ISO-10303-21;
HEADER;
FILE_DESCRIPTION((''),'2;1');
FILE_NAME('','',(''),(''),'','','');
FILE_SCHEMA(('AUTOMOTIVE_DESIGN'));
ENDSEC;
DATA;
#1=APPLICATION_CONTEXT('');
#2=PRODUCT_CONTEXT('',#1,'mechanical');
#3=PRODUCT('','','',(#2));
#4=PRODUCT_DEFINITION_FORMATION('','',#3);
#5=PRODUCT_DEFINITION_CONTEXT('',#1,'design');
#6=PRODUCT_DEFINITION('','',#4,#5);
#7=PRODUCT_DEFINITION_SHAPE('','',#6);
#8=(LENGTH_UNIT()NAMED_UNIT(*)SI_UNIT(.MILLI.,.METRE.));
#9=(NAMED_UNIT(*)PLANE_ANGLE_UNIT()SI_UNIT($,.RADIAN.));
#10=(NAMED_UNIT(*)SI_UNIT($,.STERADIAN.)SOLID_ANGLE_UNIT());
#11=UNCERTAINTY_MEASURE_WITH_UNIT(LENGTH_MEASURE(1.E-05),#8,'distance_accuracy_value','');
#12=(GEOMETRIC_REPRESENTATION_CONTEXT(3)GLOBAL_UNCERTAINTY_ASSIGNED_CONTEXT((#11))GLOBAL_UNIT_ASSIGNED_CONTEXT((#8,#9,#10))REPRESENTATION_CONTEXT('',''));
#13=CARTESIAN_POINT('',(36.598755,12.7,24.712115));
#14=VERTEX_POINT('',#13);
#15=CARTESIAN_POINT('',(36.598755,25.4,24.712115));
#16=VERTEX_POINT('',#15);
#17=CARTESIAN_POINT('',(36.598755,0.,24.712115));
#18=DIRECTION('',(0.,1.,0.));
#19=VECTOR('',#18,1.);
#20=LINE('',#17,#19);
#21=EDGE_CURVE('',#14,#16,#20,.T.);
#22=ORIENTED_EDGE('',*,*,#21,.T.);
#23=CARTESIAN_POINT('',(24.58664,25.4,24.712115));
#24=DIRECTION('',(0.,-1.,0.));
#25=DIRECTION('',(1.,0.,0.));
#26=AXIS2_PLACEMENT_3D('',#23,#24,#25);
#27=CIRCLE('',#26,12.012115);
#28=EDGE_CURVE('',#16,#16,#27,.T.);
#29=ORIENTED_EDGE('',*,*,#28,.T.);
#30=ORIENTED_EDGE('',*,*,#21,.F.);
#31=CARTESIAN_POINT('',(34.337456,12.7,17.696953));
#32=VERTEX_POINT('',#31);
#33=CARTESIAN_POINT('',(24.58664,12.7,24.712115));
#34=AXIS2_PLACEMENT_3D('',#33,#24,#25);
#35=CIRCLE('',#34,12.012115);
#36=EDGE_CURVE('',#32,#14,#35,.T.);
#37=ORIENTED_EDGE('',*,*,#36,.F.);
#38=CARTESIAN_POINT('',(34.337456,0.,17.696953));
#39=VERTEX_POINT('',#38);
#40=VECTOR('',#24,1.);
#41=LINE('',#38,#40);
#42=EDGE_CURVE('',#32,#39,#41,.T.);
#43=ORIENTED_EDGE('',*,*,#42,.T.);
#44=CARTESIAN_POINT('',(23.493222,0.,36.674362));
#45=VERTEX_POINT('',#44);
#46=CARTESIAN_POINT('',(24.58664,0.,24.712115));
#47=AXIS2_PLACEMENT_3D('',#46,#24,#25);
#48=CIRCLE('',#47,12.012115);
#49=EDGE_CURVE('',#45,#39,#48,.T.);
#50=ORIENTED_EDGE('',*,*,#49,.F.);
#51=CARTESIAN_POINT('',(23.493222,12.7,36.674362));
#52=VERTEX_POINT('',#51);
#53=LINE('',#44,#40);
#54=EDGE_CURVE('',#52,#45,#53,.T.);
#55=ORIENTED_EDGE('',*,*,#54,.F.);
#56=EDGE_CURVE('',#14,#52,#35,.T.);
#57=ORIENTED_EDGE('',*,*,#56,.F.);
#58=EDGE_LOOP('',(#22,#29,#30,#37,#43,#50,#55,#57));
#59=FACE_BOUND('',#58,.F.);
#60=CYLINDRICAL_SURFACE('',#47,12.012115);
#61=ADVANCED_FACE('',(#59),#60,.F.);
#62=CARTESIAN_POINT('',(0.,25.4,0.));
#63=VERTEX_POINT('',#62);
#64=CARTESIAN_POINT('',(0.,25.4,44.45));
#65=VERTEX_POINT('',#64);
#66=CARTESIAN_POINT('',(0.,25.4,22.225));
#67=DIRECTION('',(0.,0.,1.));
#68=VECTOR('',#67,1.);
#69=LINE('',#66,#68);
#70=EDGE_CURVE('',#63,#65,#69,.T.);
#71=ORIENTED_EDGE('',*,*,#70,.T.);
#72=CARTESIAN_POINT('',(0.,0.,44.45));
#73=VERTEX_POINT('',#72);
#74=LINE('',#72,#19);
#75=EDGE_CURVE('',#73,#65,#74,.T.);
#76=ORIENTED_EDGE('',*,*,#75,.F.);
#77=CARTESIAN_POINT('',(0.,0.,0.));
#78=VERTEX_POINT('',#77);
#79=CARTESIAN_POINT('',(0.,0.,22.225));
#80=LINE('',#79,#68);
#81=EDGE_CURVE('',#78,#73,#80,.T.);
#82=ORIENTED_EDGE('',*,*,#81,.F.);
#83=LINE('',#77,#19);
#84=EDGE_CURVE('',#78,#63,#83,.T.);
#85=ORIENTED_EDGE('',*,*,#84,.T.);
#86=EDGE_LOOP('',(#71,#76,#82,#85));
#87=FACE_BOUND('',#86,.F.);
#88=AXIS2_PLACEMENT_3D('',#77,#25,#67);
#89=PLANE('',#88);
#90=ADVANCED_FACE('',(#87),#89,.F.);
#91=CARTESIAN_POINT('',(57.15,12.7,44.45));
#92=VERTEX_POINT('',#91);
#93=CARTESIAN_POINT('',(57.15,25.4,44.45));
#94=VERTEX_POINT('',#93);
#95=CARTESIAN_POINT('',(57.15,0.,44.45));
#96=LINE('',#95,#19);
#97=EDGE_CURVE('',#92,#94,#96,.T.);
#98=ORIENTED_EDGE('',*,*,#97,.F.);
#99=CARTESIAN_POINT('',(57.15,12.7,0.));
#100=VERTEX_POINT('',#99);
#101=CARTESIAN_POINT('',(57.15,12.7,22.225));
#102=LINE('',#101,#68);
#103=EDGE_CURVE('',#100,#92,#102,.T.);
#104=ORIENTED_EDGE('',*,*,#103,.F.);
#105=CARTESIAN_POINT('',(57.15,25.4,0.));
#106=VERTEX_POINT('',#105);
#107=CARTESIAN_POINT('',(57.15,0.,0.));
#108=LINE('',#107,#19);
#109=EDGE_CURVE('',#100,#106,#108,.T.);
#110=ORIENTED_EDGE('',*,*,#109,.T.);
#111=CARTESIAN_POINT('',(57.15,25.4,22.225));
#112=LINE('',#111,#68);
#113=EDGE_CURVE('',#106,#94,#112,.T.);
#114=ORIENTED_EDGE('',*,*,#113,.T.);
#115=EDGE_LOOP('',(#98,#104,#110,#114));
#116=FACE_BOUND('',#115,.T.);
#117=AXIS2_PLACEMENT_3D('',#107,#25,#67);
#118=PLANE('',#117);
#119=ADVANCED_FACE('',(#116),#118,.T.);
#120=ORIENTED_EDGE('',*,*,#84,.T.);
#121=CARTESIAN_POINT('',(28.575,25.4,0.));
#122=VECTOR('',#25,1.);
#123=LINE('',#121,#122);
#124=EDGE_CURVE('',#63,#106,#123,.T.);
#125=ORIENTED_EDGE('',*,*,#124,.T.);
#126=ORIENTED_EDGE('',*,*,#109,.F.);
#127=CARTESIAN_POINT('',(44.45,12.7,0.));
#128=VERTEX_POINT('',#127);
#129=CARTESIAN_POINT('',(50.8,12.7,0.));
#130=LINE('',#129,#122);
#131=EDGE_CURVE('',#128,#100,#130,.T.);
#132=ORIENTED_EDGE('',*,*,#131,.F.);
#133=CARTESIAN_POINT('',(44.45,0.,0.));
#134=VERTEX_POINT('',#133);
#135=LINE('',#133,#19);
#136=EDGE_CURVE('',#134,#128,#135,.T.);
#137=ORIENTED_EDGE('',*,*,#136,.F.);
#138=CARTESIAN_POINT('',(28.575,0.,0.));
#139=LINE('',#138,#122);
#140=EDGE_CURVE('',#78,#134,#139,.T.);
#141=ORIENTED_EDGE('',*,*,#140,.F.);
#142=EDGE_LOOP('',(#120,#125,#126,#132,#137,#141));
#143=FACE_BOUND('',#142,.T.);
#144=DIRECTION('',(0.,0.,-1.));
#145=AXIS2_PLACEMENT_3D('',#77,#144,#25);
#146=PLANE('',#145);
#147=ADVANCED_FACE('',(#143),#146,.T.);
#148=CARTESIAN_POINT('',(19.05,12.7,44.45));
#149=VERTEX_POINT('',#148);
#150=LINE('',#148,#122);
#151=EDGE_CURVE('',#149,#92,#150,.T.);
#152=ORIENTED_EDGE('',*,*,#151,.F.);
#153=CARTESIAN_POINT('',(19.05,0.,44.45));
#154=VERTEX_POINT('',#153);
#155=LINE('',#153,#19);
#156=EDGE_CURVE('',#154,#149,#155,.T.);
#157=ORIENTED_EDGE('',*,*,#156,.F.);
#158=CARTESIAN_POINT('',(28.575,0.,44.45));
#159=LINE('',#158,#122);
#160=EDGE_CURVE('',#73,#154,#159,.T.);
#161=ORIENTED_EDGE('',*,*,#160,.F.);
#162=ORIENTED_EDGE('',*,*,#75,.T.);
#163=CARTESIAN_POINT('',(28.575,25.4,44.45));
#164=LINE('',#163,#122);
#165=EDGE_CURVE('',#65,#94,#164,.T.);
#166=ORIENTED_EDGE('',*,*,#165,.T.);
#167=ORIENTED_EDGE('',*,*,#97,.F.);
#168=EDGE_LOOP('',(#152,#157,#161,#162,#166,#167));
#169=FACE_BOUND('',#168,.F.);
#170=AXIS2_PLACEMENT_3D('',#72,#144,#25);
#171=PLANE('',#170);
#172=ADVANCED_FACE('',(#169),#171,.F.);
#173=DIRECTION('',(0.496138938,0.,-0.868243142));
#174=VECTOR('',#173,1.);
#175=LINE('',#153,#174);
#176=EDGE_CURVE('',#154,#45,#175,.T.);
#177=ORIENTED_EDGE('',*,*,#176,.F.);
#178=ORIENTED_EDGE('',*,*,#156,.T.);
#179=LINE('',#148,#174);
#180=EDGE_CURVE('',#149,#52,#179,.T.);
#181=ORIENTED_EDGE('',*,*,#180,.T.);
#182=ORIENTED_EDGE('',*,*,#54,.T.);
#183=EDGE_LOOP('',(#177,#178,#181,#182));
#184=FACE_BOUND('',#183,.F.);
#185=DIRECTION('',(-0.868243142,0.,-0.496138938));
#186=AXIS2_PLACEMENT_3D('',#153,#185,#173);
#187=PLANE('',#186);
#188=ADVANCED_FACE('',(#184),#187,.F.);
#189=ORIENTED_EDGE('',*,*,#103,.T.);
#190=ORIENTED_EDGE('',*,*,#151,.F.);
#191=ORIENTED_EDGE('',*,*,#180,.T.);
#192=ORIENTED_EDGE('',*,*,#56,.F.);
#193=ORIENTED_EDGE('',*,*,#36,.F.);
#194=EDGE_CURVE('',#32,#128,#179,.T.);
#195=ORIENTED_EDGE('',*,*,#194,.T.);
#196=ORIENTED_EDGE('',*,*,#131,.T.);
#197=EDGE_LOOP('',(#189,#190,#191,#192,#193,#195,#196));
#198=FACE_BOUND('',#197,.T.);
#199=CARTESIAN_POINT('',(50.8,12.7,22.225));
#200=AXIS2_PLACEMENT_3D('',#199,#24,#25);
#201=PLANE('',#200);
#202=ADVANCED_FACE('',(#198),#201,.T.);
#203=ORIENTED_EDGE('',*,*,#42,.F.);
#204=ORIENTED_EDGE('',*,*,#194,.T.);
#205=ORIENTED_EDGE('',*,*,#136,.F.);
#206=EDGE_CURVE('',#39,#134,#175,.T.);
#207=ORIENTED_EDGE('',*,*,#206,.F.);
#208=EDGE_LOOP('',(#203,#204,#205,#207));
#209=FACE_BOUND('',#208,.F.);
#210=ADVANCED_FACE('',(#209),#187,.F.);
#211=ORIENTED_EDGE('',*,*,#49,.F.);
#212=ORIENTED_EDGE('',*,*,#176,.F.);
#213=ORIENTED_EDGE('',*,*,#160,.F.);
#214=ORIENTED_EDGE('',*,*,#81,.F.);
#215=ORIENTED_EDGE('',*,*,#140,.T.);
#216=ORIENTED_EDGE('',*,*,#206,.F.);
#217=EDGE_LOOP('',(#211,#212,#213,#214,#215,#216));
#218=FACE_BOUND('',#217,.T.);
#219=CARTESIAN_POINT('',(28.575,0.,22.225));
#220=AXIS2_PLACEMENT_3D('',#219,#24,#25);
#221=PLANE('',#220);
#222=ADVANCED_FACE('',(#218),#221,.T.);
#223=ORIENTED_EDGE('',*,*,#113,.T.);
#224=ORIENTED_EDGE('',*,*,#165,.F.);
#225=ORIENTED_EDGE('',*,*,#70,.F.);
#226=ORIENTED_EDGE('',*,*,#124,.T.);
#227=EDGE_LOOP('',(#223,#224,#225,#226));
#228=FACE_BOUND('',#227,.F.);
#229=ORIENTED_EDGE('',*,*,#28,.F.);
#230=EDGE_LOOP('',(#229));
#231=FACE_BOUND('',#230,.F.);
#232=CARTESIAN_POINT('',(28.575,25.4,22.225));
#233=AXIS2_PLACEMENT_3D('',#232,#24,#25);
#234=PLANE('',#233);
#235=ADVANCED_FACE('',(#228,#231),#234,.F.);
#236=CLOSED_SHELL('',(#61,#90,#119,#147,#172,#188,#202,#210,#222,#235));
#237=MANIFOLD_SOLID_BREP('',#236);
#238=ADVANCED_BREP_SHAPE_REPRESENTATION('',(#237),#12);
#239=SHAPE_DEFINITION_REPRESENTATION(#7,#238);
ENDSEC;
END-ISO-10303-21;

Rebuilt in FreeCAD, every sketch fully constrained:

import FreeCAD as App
import Part
import Sketcher

V = App.Vector
Q = App.Units.Quantity


def add_polygon(sketch, points):
    """Adds a closed chain of lines whose ends are joined by coincident constraints."""
    first, n = sketch.GeometryCount, len(points)
    for a, b in zip(points, points[1:] + points[:1]):
        sketch.addGeometry(Part.LineSegment(App.Vector(*a, 0), App.Vector(*b, 0)), False)
    for i in range(n):
        sketch.addConstraint(Sketcher.Constraint("Coincident", first + i, 2, first + (i + 1) % n, 1))

doc = App.newDocument("Part")
body = doc.addObject("PartDesign::Body", "Body")

# Sketch on XZ plane
sketch1 = body.newObject("Sketcher::SketchObject", "Sketch")
sketch1.AttachmentSupport = (doc.getObject("XZ_Plane"), [""])
sketch1.MapMode = "FlatFace"
add_polygon(sketch1, [(0, 44), (0, 0), (57, 0), (57, 44)])  # lines 0-3
sketch1.addConstraint([
    Sketcher.Constraint("Vertical", 0),
    Sketcher.Constraint("Horizontal", 1),
    Sketcher.Constraint("Vertical", 2),
    Sketcher.Constraint("Horizontal", 3),
    Sketcher.Constraint("Coincident", 0, 2, -1, 1),
    Sketcher.Constraint("DistanceX", 1, 1, 1, 2, Q("2.25 in")),
    Sketcher.Constraint("DistanceY", 0, 2, 0, 1, Q("1.75 in")),
])
pad1 = body.newObject("PartDesign::Pad", "Pad")
pad1.Profile = sketch1
pad1.Length = Q("1 in")
pad1.Reversed = True

# Sketch on XZ plane
sketch2 = body.newObject("Sketcher::SketchObject", "Sketch001")
sketch2.AttachmentSupport = (doc.getObject("XZ_Plane"), [""])
sketch2.MapMode = "FlatFace"
add_polygon(sketch2, [(44, 44), (44, 0), (57, 0), (57, 44)])  # lines 0-3
sketch2.addConstraint([
    Sketcher.Constraint("Vertical", 0),
    Sketcher.Constraint("Horizontal", 1),
    Sketcher.Constraint("Vertical", 2),
    Sketcher.Constraint("Horizontal", 3),
    Sketcher.Constraint("PointOnObject", 0, 2, -1),
    Sketcher.Constraint("DistanceX", 1, 1, 1, 2, Q("0.5 in")),
    Sketcher.Constraint("DistanceY", 0, 2, 0, 1, Q("1.75 in")),
    Sketcher.Constraint("DistanceX", -1, 1, 0, 2, Q("1.75 in")),
])
pocket1 = body.newObject("PartDesign::Pocket", "Pocket")
pocket1.Profile = sketch2
pocket1.Length = Q("0.5 in")

# Sketch on XZ plane
sketch3 = body.newObject("Sketcher::SketchObject", "Sketch002")
sketch3.AttachmentSupport = (doc.getObject("XZ_Plane"), [""])
sketch3.MapMode = "FlatFace"
add_polygon(sketch3, [(19, 44), (44, 0), (44, 44)])  # lines 0-2
sketch3.addConstraint([
    Sketcher.Constraint("Vertical", 1),
    Sketcher.Constraint("Horizontal", 2),
    Sketcher.Constraint("PointOnObject", 0, 2, -1),
    Sketcher.Constraint("DistanceX", 2, 2, 2, 1, Q("1 in")),
    Sketcher.Constraint("DistanceY", 1, 1, 1, 2, Q("1.75 in")),
    Sketcher.Constraint("DistanceX", -1, 1, 0, 2, Q("1.75 in")),
])
pocket2 = body.newObject("PartDesign::Pocket", "Pocket001")
pocket2.Profile = sketch3
pocket2.Length = Q("0.5 in")

# Sketch on XZ plane
sketch4 = body.newObject("Sketcher::SketchObject", "Sketch003")
sketch4.AttachmentSupport = (doc.getObject("XZ_Plane"), [""])
sketch4.MapMode = "FlatFace"
sketch4.addGeometry(Part.Circle(V(25, 25, 0), V(0, 0, 1), 12), False)
sketch4.addConstraint([
    Sketcher.Constraint("Diameter", 0, 24.02423),
    Sketcher.Constraint("DistanceX", -1, 1, 0, 3, 24.58664),
    Sketcher.Constraint("DistanceY", -1, 1, 0, 3, 24.712115),
])
pocket3 = body.newObject("PartDesign::Pocket", "Pocket002")
pocket3.Profile = sketch4
pocket3.Length = Q("1 in")

doc.recompute()
